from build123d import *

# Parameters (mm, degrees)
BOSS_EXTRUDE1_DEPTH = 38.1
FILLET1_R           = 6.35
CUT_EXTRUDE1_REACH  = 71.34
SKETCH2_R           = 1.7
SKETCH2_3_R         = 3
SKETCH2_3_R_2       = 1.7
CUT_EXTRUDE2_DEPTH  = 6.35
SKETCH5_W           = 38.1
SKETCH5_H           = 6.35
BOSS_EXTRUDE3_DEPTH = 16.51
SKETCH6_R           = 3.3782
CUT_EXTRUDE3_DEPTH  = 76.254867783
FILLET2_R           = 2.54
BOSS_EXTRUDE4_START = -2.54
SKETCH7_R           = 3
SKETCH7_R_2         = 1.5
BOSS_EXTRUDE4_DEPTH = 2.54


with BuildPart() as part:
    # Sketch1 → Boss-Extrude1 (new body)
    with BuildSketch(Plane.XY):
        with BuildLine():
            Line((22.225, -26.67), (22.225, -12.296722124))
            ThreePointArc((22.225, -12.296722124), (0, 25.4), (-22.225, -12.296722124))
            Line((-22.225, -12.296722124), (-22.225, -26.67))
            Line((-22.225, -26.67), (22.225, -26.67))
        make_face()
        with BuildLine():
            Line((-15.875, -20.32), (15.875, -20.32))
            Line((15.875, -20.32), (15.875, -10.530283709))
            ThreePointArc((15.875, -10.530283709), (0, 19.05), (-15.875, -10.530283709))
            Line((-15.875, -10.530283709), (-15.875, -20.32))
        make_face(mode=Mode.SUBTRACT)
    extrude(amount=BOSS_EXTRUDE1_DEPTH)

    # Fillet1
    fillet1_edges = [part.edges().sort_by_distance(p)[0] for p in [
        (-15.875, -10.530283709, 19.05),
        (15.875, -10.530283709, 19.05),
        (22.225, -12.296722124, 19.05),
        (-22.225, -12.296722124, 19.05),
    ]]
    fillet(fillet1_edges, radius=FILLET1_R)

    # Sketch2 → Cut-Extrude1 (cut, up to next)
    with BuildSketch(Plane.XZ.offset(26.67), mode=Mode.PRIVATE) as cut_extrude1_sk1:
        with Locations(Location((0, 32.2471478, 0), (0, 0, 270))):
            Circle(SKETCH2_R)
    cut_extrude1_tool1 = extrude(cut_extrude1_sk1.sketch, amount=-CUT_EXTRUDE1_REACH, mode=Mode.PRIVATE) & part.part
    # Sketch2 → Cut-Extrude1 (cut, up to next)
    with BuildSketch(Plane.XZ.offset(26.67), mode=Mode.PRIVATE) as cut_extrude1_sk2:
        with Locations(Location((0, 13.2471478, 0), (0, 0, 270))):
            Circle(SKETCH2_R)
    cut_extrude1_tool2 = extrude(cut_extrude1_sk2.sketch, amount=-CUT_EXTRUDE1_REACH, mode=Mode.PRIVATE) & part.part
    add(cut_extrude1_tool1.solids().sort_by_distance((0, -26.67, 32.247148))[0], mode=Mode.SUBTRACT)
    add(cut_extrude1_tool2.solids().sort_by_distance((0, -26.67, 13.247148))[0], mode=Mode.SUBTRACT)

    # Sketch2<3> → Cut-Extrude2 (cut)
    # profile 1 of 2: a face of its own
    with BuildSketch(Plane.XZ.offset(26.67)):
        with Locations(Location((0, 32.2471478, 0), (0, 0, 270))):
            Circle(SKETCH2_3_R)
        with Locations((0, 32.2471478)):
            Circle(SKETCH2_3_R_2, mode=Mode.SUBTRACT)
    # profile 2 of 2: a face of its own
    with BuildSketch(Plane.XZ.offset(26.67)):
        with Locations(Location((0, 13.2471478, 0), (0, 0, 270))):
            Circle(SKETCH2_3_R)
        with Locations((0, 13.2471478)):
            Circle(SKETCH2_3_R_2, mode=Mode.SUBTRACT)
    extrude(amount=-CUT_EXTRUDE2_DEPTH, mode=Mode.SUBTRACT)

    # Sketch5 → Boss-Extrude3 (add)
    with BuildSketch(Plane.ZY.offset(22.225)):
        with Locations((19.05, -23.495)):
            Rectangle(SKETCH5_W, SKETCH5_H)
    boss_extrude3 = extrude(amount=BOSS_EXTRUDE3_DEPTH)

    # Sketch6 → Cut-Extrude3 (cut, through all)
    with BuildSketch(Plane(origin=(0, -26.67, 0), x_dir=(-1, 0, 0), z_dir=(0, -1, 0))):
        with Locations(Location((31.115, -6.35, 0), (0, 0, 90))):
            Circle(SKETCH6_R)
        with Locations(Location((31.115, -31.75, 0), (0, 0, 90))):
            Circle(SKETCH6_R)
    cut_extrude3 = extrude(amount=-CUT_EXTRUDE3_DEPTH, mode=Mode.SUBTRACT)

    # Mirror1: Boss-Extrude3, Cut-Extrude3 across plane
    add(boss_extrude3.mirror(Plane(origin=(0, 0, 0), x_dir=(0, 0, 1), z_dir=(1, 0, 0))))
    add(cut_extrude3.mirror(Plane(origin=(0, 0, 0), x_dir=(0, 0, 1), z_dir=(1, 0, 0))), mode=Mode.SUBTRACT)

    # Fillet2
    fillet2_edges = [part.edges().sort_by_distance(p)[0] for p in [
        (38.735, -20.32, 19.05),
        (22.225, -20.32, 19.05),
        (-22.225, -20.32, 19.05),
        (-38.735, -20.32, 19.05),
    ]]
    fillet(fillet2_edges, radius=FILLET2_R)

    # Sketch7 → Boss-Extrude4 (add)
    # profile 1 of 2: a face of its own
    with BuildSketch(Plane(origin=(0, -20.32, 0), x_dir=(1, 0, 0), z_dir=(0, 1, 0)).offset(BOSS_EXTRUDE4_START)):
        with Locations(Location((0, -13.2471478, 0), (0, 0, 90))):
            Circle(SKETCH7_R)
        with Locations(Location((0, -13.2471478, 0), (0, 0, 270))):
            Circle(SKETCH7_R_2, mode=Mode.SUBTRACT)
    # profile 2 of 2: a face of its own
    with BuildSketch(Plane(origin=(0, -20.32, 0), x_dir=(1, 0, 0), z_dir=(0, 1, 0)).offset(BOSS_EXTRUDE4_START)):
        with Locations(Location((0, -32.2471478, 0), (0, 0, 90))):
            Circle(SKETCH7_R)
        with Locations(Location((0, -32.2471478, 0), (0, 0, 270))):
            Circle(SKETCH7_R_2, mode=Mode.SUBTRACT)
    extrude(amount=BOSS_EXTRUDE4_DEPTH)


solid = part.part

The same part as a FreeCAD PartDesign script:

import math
import FreeCAD as App
import Part
import Sketcher
from FreeCAD import Vector
Q = App.Units.Quantity


def edges_at(feature, points):
    """Names of the edges that pass closest to the given points."""
    edges = feature.Shape.Edges
    near = lambda p: min(range(len(edges)), key=lambda i: edges[i].distToShape(Part.Vertex(*p))[0])
    return sorted({f"Edge{near(p) + 1}" for p in points})

doc = App.newDocument("Part")
params = doc.addObject("Spreadsheet::Sheet", "Params")
for row, (alias, value) in enumerate([
    ("sketch1_radius", "1 in"),
    ("sketch1_radius2", "0.75 in"),
    ("sketch1_width", "1.75 in"),
    ("sketch1_width2", "1.25 in"),
    ("pad1_length", "1.5 in"),
    ("fillet_radius", "0.25 in"),
    ("pocket3_length", "0.25 in"),
    ("sketch5_height", "1.5 in"),
    ("sketch5_width", "0.25 in"),
    ("pad2_length", "0.65 in"),
    ("sketch6_diameter", "0.266 in"),
    ("fillet2_radius", "0.1 in"),
    ("pad3_length", "0.1 in"),
], start=1):
    params.set(f"A{row}", alias)
    params.set(f"B{row}", "=" + value)
    params.setAlias(f"B{row}", alias)

body = doc.addObject("PartDesign::Body", "Body")

# Sketch on XY plane
sketch1 = body.newObject("Sketcher::SketchObject", "Sketch")
sketch1.AttachmentSupport = (doc.getObject("XY_Plane"), [""])
sketch1.MapMode = "FlatFace"
sketch1.addGeometry([
    Part.LineSegment(Vector(22.225, -26.67, 0), Vector(22.225, -12.296722, 0)),  # 0
    Part.ArcOfCircle(Part.Circle(Vector(0, 0, 0), Vector(0, 0, 1), 25.4), math.radians(-28.955024), math.radians(208.955024)),  # 1
    Part.LineSegment(Vector(-22.225, -12.296722, 0), Vector(-22.225, -26.67, 0)),  # 2
    Part.LineSegment(Vector(-22.225, -26.67, 0), Vector(22.225, -26.67, 0)),  # 3
    Part.LineSegment(Vector(15.875, -20.32, 0), Vector(-15.875, -20.32, 0)),  # 4
    Part.LineSegment(Vector(-15.875, -20.32, 0), Vector(-15.875, -10.530284, 0)),  # 5
    Part.ArcOfCircle(Part.Circle(Vector(0, 0, 0), Vector(0, 0, 1), 19.05), math.radians(-33.55731), math.radians(213.55731)),  # 6
    Part.LineSegment(Vector(15.875, -10.530284, 0), Vector(15.875, -20.32, 0)),  # 7
], False)
sketch1.addConstraint([
    Sketcher.Constraint("Coincident", 0, 2, 1, 1),
    Sketcher.Constraint("Coincident", 1, 2, 2, 1),
    Sketcher.Constraint("Coincident", 2, 2, 3, 1),
    Sketcher.Constraint("Coincident", 3, 2, 0, 1),
    Sketcher.Constraint("Coincident", 4, 2, 5, 1),
    Sketcher.Constraint("Coincident", 5, 2, 6, 2),
    Sketcher.Constraint("Coincident", 6, 1, 7, 1),
    Sketcher.Constraint("Coincident", 7, 2, 4, 1),
    Sketcher.Constraint("Vertical", 0),
    Sketcher.Constraint("Vertical", 2),
    Sketcher.Constraint("Horizontal", 3),
    Sketcher.Constraint("Horizontal", 4),
    Sketcher.Constraint("Vertical", 5),
    Sketcher.Constraint("Vertical", 7),
    Sketcher.Constraint("Coincident", 1, 3, -1, 1),
    Sketcher.Constraint("Coincident", 6, 3, -1, 1),
    Sketcher.Constraint("Horizontal", 0, 2, 1, 2),
    Sketcher.Constraint("Horizontal", 5, 2, 6, 1),
    Sketcher.Constraint("Radius", 1, Q("1 in")),
    Sketcher.Constraint("Radius", 6, Q("0.75 in")),
    Sketcher.Constraint("DistanceX", 3, 1, 3, 2, Q("1.75 in")),
    Sketcher.Constraint("DistanceX", 4, 2, 4, 1, Q("1.25 in")),
    Sketcher.Constraint("DistanceY", 4, 2, -1, 1, Q("0.8 in")),
    Sketcher.Constraint("DistanceY", 2, 2, -1, 1, Q("1.05 in")),
])
sketch1.setExpression("Constraints[18]", "Params.sketch1_radius")
sketch1.setExpression("Constraints[19]", "Params.sketch1_radius2")
sketch1.setExpression("Constraints[20]", "Params.sketch1_width")
sketch1.setExpression("Constraints[21]", "Params.sketch1_width2")
pad1 = body.newObject("PartDesign::Pad", "Pad")
pad1.Profile = sketch1
pad1.setExpression("Length", "Params.pad1_length")
doc.recompute()

fillet = body.newObject("PartDesign::Fillet", "Fillet")
fillet.Base = (pad1, edges_at(pad1, [
    (-15.875, -10.53, 19.05),
    (15.875, -10.53, 19.05),
    (22.225, -12.297, 19.05),
    (-22.225, -12.297, 19.05),
]))
fillet.setExpression("Radius", "Params.fillet_radius")

# Sketch on XZ plane
sketch2 = body.newObject("Sketcher::SketchObject", "Sketch001")
sketch2.AttachmentSupport = (doc.getObject("XZ_Plane"), [""])
sketch2.MapMode = "FlatFace"
sketch2.AttachmentOffset = App.Placement(Vector(0, 0, 1.05 * 25.4), App.Rotation())
sketch2.addGeometry(Part.Circle(Vector(0, 32.247148, 0), Vector(0, 0, 1), 1.7), False)
sketch2.addConstraint([
    Sketcher.Constraint("PointOnObject", 0, 3, -2),
    Sketcher.Constraint("Diameter", 0, 3.4),
    Sketcher.Constraint("DistanceY", -1, 1, 0, 3, 32.247148),
])
pocket1 = body.newObject("PartDesign::Pocket", "Pocket")
pocket1.Profile = sketch2
pocket1.Type = "UpToFirst"

# Sketch on XZ plane
sketch3 = body.newObject("Sketcher::SketchObject", "Sketch002")
sketch3.AttachmentSupport = (doc.getObject("XZ_Plane"), [""])
sketch3.MapMode = "FlatFace"
sketch3.AttachmentOffset = App.Placement(Vector(0, 0, 1.05 * 25.4), App.Rotation())
sketch3.addGeometry(Part.Circle(Vector(0, 13.247148, 0), Vector(0, 0, 1), 1.7), False)
sketch3.addConstraint([
    Sketcher.Constraint("PointOnObject", 0, 3, -2),
    Sketcher.Constraint("Diameter", 0, 3.4),
    Sketcher.Constraint("DistanceY", -1, 1, 0, 3, 13.247148),
])
pocket2 = body.newObject("PartDesign::Pocket", "Pocket001")
pocket2.Profile = sketch3
pocket2.Type = "UpToFirst"

# Sketch on XZ plane
sketch4 = body.newObject("Sketcher::SketchObject", "Sketch003")
sketch4.AttachmentSupport = (doc.getObject("XZ_Plane"), [""])
sketch4.MapMode = "FlatFace"
sketch4.AttachmentOffset = App.Placement(Vector(0, 0, 1.05 * 25.4), App.Rotation())
sketch4.addGeometry([
    Part.Circle(Vector(0, 32.247148, 0), Vector(0, 0, 1), 3),
    Part.Circle(Vector(0, 32.247148, 0), Vector(0, 0, 1), 1.7),
    Part.Circle(Vector(0, 13.247148, 0), Vector(0, 0, 1), 3),
    Part.Circle(Vector(0, 13.247148, 0), Vector(0, 0, 1), 1.7),
], False)
sketch4.addConstraint([
    Sketcher.Constraint("Coincident", 1, 3, 0, 3),
    Sketcher.Constraint("Coincident", 3, 3, 2, 3),
    Sketcher.Constraint("Equal", 0, 2),
    Sketcher.Constraint("Equal", 1, 3),
    Sketcher.Constraint("PointOnObject", 0, 3, -2),
    Sketcher.Constraint("PointOnObject", 2, 3, -2),
    Sketcher.Constraint("Diameter", 0, 6.0),
    Sketcher.Constraint("Diameter", 1, 3.4),
    Sketcher.Constraint("DistanceY", 2, 3, 0, 3, 19.0),
    Sketcher.Constraint("DistanceY", -1, 1, 0, 3, 32.247148),
])
pocket3 = body.newObject("PartDesign::Pocket", "Pocket002")
pocket3.Profile = sketch4
pocket3.setExpression("Length", "Params.pocket3_length")

# Sketch on YZ plane
sketch5 = body.newObject("Sketcher::SketchObject", "Sketch004")
sketch5.AttachmentSupport = (doc.getObject("YZ_Plane"), [""])
sketch5.MapMode = "FlatFace"
sketch5.AttachmentOffset = App.Placement(Vector(0, 0, -0.875 * 25.4), App.Rotation())
sketch5.addGeometry([
    Part.LineSegment(Vector(-20.32, 0, 0), Vector(-26.67, 0, 0)),
    Part.LineSegment(Vector(-26.67, 0, 0), Vector(-26.67, 38.1, 0)),
    Part.LineSegment(Vector(-26.67, 38.1, 0), Vector(-20.32, 38.1, 0)),
    Part.LineSegment(Vector(-20.32, 38.1, 0), Vector(-20.32, 0, 0)),
], False)
sketch5.addConstraint([
    Sketcher.Constraint("Coincident", 0, 2, 1, 1),
    Sketcher.Constraint("Coincident", 1, 2, 2, 1),
    Sketcher.Constraint("Coincident", 2, 2, 3, 1),
    Sketcher.Constraint("Coincident", 3, 2, 0, 1),
    Sketcher.Constraint("Horizontal", 0),
    Sketcher.Constraint("Vertical", 1),
    Sketcher.Constraint("Horizontal", 2),
    Sketcher.Constraint("Vertical", 3),
    Sketcher.Constraint("PointOnObject", 0, 2, -1),
    Sketcher.Constraint("DistanceY", 1, 1, 1, 2, Q("1.5 in")),
    Sketcher.Constraint("DistanceX", 0, 2, 0, 1, Q("0.25 in")),
    Sketcher.Constraint("DistanceX", 2, 2, -1, 1, Q("0.8 in")),
])
sketch5.setExpression("Constraints[9]", "Params.sketch5_height")
sketch5.setExpression("Constraints[10]", "Params.sketch5_width")
pad2 = body.newObject("PartDesign::Pad", "Pad001")
pad2.Profile = sketch5
pad2.setExpression("Length", "Params.pad2_length")
pad2.Reversed = True

# Sketch on XZ plane
sketch6 = body.newObject("Sketcher::SketchObject", "Sketch005")
sketch6.AttachmentSupport = (doc.getObject("XZ_Plane"), [""])
sketch6.MapMode = "FlatFace"
sketch6.AttachmentOffset = App.Placement(Vector(0, 0, 1.05 * 25.4), App.Rotation())
sketch6.addGeometry([
    Part.Circle(Vector(-31.115, 6.35, 0), Vector(0, 0, 1), 3.3782),
    Part.Circle(Vector(-31.115, 31.75, 0), Vector(0, 0, 1), 3.3782),
], False)
sketch6.addConstraint([
    Sketcher.Constraint("Equal", 0, 1),
    Sketcher.Constraint("Vertical", 0, 3, 1, 3),
    Sketcher.Constraint("Diameter", 0, Q("0.266 in")),
    Sketcher.Constraint("DistanceY", 0, 3, 1, 3, Q("1 in")),
    Sketcher.Constraint("DistanceY", -1, 1, 0, 3, Q("0.25 in")),
    Sketcher.Constraint("DistanceX", 0, 3, -1, 1, Q("1.225 in")),
])
sketch6.setExpression("Constraints[2]", "Params.sketch6_diameter")
pocket4 = body.newObject("PartDesign::Pocket", "Pocket003")
pocket4.Profile = sketch6
pocket4.Type = "ThroughAll"
doc.recompute()

mirrored = body.newObject("PartDesign::Mirrored", "Mirrored")
mirrored.Originals = [pad2, pocket4]
mirrored.MirrorPlane = (doc.getObject("YZ_Plane"), [""])
body.Tip = mirrored
doc.recompute()

fillet2 = body.newObject("PartDesign::Fillet", "Fillet001")
fillet2.Base = (mirrored, edges_at(mirrored, [
    (38.735, -20.32, 19.05),
    (22.225, -20.32, 19.05),
    (-22.225, -20.32, 19.05),
    (-38.735, -20.32, 19.05),
]))
fillet2.setExpression("Radius", "Params.fillet2_radius")

# Sketch on XZ plane
sketch7 = body.newObject("Sketcher::SketchObject", "Sketch006")
sketch7.AttachmentSupport = (doc.getObject("XZ_Plane"), [""])
sketch7.MapMode = "FlatFace"
sketch7.AttachmentOffset = App.Placement(Vector(0, 0, 0.9 * 25.4), App.Rotation())
sketch7.addGeometry([
    Part.Circle(Vector(0, 13.247148, 0), Vector(0, 0, 1), 3),
    Part.Circle(Vector(0, 13.247148, 0), Vector(0, 0, 1), 1.5),
    Part.Circle(Vector(0, 32.247148, 0), Vector(0, 0, 1), 3),
    Part.Circle(Vector(0, 32.247148, 0), Vector(0, 0, 1), 1.5),
], False)
sketch7.addConstraint([
    Sketcher.Constraint("Coincident", 1, 3, 0, 3),
    Sketcher.Constraint("Coincident", 3, 3, 2, 3),
    Sketcher.Constraint("Equal", 0, 2),
    Sketcher.Constraint("Equal", 1, 3),
    Sketcher.Constraint("PointOnObject", 0, 3, -2),
    Sketcher.Constraint("PointOnObject", 2, 3, -2),
    Sketcher.Constraint("Diameter", 0, 6.0),
    Sketcher.Constraint("Diameter", 1, 3.0),
    Sketcher.Constraint("DistanceY", 0, 3, 2, 3, 19.0),
    Sketcher.Constraint("DistanceY", -1, 1, 0, 3, 13.247148),
])
pad3 = body.newObject("PartDesign::Pad", "Pad002")
pad3.Profile = sketch7
pad3.setExpression("Length", "Params.pad3_length")
pad3.Reversed = True

doc.recompute()
